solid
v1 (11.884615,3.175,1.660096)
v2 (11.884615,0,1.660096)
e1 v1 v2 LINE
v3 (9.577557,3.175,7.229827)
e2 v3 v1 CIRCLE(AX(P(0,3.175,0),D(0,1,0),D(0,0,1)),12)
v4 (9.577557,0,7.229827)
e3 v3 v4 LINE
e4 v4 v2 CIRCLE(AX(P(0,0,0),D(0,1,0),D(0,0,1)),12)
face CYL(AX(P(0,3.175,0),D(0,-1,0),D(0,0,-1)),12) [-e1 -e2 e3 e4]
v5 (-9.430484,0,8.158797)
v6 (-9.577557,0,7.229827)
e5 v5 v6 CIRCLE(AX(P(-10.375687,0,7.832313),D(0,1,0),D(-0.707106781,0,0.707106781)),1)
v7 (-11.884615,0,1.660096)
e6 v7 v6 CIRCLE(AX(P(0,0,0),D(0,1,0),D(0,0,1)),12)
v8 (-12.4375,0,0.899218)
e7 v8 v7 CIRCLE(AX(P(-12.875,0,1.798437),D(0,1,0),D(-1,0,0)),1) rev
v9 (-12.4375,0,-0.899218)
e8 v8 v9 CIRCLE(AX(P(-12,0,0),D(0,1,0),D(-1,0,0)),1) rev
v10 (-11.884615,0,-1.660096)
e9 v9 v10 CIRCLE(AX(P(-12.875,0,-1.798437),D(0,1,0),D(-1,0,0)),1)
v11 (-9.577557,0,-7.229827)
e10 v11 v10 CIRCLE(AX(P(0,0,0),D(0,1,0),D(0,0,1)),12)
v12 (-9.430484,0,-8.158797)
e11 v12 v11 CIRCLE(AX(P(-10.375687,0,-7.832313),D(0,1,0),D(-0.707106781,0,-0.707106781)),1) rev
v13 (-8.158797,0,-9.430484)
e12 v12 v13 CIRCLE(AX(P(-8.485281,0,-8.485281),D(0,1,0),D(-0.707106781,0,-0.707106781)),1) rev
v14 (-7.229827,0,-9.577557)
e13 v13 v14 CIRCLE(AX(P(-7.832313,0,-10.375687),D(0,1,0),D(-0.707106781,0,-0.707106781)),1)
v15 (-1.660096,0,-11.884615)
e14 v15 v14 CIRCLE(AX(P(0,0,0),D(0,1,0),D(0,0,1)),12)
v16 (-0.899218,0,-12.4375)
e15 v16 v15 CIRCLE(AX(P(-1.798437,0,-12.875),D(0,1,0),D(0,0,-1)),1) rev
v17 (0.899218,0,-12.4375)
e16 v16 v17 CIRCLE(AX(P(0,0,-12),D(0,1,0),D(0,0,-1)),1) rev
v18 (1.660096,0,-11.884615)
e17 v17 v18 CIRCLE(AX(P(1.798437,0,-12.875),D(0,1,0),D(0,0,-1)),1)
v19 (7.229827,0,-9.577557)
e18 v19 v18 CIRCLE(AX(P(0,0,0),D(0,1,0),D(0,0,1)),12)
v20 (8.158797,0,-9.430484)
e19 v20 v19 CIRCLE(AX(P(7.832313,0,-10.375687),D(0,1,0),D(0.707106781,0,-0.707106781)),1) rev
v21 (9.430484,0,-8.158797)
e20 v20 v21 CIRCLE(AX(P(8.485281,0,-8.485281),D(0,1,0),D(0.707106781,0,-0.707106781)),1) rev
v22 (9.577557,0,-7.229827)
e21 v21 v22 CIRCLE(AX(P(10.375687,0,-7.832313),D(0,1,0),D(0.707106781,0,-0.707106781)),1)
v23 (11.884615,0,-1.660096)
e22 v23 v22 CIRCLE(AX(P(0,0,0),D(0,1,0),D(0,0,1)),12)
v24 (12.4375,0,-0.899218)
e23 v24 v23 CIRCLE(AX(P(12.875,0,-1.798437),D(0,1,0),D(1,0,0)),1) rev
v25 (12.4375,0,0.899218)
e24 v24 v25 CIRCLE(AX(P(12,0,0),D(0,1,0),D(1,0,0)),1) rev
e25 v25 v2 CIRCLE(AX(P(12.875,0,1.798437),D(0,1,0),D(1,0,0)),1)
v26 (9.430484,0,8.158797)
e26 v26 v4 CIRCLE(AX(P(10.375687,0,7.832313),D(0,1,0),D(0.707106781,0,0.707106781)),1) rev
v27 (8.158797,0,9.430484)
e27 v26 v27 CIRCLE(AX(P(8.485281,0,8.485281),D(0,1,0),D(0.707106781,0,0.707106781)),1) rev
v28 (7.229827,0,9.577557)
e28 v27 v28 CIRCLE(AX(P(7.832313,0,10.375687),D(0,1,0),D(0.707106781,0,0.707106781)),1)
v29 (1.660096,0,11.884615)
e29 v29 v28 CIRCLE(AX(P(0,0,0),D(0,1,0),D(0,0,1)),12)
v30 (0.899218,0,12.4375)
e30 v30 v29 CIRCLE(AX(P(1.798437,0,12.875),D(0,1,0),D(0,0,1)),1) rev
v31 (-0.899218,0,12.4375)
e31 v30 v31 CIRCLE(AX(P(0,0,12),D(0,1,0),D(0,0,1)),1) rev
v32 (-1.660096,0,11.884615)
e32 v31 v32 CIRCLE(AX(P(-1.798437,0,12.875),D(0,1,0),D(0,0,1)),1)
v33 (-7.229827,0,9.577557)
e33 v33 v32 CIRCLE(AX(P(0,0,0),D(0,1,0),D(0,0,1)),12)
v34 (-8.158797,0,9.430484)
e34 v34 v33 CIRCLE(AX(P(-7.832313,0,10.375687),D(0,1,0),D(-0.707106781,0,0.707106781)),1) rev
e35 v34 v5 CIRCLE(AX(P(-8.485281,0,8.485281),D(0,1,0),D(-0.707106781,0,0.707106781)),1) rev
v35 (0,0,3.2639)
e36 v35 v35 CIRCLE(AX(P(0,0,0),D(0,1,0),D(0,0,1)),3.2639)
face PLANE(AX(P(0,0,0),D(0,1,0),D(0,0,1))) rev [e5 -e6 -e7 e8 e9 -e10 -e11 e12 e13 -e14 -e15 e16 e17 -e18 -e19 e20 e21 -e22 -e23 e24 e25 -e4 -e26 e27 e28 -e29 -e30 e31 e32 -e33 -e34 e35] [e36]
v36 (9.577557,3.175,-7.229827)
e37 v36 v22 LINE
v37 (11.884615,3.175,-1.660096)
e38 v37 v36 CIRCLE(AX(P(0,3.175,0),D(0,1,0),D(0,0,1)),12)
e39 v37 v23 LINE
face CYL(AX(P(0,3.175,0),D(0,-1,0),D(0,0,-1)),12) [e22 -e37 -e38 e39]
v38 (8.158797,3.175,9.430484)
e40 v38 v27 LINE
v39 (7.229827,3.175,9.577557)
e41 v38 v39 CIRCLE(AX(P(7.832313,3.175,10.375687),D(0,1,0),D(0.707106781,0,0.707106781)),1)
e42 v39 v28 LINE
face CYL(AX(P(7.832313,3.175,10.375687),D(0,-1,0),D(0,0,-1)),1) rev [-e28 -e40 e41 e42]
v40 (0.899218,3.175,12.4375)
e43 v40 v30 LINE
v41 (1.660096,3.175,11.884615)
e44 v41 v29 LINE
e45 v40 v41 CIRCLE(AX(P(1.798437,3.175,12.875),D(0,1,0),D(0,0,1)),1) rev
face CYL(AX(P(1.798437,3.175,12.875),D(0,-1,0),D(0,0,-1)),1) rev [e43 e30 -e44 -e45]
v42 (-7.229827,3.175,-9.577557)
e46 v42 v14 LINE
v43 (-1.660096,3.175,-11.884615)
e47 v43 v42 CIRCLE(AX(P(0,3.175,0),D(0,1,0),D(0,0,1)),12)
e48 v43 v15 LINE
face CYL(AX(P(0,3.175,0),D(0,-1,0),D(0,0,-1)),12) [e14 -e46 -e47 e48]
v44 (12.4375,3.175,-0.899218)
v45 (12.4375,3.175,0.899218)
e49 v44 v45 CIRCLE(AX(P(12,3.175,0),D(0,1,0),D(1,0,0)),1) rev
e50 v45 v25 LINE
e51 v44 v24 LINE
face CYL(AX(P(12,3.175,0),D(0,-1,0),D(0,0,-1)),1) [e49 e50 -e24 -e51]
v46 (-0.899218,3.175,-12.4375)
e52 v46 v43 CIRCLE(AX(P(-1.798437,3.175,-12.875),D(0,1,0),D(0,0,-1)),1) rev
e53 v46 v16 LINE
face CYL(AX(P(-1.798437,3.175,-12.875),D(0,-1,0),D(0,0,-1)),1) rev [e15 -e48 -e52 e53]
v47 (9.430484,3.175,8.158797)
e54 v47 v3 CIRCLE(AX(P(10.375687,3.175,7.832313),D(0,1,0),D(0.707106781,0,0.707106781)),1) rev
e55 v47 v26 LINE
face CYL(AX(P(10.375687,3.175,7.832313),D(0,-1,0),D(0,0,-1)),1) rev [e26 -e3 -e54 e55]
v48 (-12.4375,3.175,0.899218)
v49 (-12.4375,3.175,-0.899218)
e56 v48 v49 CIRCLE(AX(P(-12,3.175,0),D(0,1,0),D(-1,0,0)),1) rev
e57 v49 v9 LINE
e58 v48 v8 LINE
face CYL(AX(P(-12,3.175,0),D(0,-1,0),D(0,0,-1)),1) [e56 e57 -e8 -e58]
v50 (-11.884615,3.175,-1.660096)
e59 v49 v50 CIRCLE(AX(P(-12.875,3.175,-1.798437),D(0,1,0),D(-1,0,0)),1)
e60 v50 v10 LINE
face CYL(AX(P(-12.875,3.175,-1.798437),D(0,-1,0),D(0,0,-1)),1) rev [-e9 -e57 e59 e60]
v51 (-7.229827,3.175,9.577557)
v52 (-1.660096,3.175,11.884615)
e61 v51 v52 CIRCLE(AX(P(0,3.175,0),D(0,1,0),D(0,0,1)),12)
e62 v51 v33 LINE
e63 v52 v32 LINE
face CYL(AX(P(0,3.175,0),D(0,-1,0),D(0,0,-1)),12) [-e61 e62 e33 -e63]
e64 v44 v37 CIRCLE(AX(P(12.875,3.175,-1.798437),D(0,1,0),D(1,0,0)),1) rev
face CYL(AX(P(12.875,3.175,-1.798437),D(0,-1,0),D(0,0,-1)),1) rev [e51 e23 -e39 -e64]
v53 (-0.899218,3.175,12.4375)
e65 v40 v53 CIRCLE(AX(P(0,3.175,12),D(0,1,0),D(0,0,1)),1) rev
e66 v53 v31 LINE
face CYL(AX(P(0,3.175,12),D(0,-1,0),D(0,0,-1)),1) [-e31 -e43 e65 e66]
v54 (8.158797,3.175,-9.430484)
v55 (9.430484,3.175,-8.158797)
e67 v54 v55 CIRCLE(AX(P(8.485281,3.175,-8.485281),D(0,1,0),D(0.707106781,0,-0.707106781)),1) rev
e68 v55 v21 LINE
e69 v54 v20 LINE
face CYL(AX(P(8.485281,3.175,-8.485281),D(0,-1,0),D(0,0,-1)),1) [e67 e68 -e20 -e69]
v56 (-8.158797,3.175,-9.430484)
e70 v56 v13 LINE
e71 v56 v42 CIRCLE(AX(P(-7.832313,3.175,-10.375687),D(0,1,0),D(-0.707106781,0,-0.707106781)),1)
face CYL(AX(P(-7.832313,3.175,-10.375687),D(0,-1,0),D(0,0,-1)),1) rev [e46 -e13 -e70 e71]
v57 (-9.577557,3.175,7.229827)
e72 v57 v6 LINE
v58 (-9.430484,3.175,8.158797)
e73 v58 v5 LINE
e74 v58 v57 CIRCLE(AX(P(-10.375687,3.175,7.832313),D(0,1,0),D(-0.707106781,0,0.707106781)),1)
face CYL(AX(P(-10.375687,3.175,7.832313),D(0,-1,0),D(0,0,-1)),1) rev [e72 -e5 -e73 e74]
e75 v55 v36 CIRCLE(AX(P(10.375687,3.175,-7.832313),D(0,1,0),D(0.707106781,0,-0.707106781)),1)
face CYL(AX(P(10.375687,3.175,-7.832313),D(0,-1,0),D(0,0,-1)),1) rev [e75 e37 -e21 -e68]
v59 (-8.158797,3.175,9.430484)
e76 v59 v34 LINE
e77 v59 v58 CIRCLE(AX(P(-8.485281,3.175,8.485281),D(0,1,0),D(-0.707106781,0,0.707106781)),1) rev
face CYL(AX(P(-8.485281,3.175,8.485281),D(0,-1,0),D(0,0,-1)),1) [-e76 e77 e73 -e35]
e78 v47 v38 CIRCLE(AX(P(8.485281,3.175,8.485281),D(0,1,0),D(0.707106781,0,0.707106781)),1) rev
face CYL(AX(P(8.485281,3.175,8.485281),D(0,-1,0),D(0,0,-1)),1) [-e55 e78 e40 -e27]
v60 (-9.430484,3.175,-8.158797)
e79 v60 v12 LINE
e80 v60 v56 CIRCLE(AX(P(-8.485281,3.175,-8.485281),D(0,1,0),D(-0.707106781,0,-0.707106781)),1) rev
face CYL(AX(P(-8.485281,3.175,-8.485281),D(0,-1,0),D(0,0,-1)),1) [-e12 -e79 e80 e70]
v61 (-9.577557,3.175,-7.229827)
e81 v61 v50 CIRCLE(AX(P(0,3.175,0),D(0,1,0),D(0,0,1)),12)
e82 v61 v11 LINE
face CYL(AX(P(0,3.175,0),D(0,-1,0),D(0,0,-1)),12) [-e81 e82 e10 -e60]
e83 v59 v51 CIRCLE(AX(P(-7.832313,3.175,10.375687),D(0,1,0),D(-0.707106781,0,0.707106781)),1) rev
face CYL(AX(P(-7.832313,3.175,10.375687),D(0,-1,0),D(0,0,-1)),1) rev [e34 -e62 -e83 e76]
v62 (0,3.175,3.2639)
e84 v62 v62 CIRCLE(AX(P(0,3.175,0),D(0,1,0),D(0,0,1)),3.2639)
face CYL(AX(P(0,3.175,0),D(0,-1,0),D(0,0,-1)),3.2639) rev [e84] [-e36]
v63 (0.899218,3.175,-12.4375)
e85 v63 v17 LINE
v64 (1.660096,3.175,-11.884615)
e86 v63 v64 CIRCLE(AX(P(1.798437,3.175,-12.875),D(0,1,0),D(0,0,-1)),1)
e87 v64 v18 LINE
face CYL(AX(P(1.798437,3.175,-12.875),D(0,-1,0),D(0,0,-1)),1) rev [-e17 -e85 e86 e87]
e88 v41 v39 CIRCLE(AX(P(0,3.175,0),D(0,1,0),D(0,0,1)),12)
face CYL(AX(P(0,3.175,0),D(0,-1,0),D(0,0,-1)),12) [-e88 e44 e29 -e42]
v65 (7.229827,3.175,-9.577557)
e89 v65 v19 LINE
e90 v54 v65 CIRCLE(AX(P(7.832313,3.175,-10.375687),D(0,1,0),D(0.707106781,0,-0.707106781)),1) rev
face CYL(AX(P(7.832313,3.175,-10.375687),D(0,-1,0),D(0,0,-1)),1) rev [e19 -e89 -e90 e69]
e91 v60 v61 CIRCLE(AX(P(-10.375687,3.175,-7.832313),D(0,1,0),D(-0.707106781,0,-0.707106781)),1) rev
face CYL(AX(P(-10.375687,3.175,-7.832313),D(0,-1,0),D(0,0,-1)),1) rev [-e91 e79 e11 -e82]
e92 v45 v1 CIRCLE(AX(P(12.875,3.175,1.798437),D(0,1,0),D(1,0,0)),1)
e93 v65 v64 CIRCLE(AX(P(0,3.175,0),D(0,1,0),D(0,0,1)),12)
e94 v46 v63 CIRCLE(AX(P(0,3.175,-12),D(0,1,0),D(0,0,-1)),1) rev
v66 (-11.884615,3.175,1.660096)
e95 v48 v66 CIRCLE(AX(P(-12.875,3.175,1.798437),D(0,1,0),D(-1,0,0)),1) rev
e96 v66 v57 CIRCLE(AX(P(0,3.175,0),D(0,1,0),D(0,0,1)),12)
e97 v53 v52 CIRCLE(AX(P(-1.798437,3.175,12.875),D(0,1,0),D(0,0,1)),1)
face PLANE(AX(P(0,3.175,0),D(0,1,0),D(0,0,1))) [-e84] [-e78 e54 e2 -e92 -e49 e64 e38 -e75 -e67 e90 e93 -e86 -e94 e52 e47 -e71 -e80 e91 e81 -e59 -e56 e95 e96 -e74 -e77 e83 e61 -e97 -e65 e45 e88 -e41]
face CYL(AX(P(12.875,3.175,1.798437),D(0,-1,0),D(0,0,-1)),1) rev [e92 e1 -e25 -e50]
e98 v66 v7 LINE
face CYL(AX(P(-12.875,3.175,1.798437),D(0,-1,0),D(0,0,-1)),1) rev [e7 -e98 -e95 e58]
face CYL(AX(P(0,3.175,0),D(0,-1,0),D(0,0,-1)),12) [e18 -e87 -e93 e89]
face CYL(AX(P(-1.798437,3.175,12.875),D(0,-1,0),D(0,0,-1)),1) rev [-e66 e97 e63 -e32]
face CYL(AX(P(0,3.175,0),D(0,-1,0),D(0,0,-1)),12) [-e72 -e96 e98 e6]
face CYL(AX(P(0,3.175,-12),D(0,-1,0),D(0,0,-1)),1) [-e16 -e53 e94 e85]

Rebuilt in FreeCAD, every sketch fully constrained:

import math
import FreeCAD as App
import Part
import Sketcher

doc = App.newDocument("Part")
body = doc.addObject("PartDesign::Body", "Body")

# Sketch on XZ plane
sketch1 = doc.addObject("Sketcher::SketchObject", "Sketch")
body.addObject(sketch1)
sketch1.AttachmentSupport = (doc.XZ_Plane, [""])
sketch1.MapMode = "FlatFace"
sketch1.addGeometry([
    Part.Circle(App.Vector(0, 0, 0), App.Vector(0, 0, 1), 12),
    Part.Circle(App.Vector(0, 0, 0), App.Vector(0, 0, 1), 3.2639),
], False)
sketch1.addConstraint([
    Sketcher.Constraint("Coincident", 0, 3, -1, 1),
    Sketcher.Constraint("Coincident", 1, 3, -1, 1),
    Sketcher.Constraint("Diameter", 0, 24.0),
    Sketcher.Constraint("Diameter", 1, 6.5278),
])
pad1 = doc.addObject("PartDesign::Pad", "Pad")
body.addObject(pad1)
pad1.Profile = sketch1
pad1.Length = 3.175
pad1.Reversed = True

# Sketch on XZ plane
sketch2 = doc.addObject("Sketcher::SketchObject", "Sketch001")
body.addObject(sketch2)
sketch2.AttachmentSupport = (doc.XZ_Plane, [""])
sketch2.MapMode = "FlatFace"
sketch2.addGeometry([
    Part.ArcOfCircle(Part.Circle(App.Vector(0, 0, 0), App.Vector(0, 0, 1), 12), math.radians(82.048125), math.radians(97.951875)),
    Part.ArcOfCircle(Part.Circle(App.Vector(-1.798437, 12.875, 0), App.Vector(0, 0, 1), 1), math.radians(-82.048125), math.radians(-25.94448)),
    Part.ArcOfCircle(Part.Circle(App.Vector(0, 12, 0), App.Vector(0, 0, 1), 1), math.radians(25.94448), math.radians(154.05552)),
    Part.ArcOfCircle(Part.Circle(App.Vector(1.798437, 12.875, 0), App.Vector(0, 0, 1), 1), math.radians(-154.05552), math.radians(-97.951875)),
], False)
sketch2.addConstraint([
    Sketcher.Constraint("Tangent", 0, 2, 1, 1),
    Sketcher.Constraint("Tangent", 1, 2, 2, 2),
    Sketcher.Constraint("Tangent", 2, 1, 3, 1),
    Sketcher.Constraint("Tangent", 3, 2, 0, 1),
    Sketcher.Constraint("Coincident", 0, 3, -1, 1),
    Sketcher.Constraint("Equal", 1, 2),
    Sketcher.Constraint("Equal", 2, 3),
    Sketcher.Constraint("PointOnObject", 2, 3, -2),
    Sketcher.Constraint("Radius", 0, 12.0),
    Sketcher.Constraint("Radius", 1, 1.0),
    Sketcher.Constraint("DistanceY", -1, 1, 2, 3, 12.0),
])
pad2 = doc.addObject("PartDesign::Pad", "Pad001")
body.addObject(pad2)
pad2.Profile = sketch2
pad2.Length = 3.175
pad2.Reversed = True
doc.recompute()

polarpattern = doc.addObject("PartDesign::PolarPattern", "PolarPattern")
body.addObject(polarpattern)
polarpattern.Originals = [pad2]
polarpattern.Axis = (doc.Y_Axis, [""])
polarpattern.Angle = 360
polarpattern.Occurrences = 8
body.Tip = polarpattern

doc.recompute()
